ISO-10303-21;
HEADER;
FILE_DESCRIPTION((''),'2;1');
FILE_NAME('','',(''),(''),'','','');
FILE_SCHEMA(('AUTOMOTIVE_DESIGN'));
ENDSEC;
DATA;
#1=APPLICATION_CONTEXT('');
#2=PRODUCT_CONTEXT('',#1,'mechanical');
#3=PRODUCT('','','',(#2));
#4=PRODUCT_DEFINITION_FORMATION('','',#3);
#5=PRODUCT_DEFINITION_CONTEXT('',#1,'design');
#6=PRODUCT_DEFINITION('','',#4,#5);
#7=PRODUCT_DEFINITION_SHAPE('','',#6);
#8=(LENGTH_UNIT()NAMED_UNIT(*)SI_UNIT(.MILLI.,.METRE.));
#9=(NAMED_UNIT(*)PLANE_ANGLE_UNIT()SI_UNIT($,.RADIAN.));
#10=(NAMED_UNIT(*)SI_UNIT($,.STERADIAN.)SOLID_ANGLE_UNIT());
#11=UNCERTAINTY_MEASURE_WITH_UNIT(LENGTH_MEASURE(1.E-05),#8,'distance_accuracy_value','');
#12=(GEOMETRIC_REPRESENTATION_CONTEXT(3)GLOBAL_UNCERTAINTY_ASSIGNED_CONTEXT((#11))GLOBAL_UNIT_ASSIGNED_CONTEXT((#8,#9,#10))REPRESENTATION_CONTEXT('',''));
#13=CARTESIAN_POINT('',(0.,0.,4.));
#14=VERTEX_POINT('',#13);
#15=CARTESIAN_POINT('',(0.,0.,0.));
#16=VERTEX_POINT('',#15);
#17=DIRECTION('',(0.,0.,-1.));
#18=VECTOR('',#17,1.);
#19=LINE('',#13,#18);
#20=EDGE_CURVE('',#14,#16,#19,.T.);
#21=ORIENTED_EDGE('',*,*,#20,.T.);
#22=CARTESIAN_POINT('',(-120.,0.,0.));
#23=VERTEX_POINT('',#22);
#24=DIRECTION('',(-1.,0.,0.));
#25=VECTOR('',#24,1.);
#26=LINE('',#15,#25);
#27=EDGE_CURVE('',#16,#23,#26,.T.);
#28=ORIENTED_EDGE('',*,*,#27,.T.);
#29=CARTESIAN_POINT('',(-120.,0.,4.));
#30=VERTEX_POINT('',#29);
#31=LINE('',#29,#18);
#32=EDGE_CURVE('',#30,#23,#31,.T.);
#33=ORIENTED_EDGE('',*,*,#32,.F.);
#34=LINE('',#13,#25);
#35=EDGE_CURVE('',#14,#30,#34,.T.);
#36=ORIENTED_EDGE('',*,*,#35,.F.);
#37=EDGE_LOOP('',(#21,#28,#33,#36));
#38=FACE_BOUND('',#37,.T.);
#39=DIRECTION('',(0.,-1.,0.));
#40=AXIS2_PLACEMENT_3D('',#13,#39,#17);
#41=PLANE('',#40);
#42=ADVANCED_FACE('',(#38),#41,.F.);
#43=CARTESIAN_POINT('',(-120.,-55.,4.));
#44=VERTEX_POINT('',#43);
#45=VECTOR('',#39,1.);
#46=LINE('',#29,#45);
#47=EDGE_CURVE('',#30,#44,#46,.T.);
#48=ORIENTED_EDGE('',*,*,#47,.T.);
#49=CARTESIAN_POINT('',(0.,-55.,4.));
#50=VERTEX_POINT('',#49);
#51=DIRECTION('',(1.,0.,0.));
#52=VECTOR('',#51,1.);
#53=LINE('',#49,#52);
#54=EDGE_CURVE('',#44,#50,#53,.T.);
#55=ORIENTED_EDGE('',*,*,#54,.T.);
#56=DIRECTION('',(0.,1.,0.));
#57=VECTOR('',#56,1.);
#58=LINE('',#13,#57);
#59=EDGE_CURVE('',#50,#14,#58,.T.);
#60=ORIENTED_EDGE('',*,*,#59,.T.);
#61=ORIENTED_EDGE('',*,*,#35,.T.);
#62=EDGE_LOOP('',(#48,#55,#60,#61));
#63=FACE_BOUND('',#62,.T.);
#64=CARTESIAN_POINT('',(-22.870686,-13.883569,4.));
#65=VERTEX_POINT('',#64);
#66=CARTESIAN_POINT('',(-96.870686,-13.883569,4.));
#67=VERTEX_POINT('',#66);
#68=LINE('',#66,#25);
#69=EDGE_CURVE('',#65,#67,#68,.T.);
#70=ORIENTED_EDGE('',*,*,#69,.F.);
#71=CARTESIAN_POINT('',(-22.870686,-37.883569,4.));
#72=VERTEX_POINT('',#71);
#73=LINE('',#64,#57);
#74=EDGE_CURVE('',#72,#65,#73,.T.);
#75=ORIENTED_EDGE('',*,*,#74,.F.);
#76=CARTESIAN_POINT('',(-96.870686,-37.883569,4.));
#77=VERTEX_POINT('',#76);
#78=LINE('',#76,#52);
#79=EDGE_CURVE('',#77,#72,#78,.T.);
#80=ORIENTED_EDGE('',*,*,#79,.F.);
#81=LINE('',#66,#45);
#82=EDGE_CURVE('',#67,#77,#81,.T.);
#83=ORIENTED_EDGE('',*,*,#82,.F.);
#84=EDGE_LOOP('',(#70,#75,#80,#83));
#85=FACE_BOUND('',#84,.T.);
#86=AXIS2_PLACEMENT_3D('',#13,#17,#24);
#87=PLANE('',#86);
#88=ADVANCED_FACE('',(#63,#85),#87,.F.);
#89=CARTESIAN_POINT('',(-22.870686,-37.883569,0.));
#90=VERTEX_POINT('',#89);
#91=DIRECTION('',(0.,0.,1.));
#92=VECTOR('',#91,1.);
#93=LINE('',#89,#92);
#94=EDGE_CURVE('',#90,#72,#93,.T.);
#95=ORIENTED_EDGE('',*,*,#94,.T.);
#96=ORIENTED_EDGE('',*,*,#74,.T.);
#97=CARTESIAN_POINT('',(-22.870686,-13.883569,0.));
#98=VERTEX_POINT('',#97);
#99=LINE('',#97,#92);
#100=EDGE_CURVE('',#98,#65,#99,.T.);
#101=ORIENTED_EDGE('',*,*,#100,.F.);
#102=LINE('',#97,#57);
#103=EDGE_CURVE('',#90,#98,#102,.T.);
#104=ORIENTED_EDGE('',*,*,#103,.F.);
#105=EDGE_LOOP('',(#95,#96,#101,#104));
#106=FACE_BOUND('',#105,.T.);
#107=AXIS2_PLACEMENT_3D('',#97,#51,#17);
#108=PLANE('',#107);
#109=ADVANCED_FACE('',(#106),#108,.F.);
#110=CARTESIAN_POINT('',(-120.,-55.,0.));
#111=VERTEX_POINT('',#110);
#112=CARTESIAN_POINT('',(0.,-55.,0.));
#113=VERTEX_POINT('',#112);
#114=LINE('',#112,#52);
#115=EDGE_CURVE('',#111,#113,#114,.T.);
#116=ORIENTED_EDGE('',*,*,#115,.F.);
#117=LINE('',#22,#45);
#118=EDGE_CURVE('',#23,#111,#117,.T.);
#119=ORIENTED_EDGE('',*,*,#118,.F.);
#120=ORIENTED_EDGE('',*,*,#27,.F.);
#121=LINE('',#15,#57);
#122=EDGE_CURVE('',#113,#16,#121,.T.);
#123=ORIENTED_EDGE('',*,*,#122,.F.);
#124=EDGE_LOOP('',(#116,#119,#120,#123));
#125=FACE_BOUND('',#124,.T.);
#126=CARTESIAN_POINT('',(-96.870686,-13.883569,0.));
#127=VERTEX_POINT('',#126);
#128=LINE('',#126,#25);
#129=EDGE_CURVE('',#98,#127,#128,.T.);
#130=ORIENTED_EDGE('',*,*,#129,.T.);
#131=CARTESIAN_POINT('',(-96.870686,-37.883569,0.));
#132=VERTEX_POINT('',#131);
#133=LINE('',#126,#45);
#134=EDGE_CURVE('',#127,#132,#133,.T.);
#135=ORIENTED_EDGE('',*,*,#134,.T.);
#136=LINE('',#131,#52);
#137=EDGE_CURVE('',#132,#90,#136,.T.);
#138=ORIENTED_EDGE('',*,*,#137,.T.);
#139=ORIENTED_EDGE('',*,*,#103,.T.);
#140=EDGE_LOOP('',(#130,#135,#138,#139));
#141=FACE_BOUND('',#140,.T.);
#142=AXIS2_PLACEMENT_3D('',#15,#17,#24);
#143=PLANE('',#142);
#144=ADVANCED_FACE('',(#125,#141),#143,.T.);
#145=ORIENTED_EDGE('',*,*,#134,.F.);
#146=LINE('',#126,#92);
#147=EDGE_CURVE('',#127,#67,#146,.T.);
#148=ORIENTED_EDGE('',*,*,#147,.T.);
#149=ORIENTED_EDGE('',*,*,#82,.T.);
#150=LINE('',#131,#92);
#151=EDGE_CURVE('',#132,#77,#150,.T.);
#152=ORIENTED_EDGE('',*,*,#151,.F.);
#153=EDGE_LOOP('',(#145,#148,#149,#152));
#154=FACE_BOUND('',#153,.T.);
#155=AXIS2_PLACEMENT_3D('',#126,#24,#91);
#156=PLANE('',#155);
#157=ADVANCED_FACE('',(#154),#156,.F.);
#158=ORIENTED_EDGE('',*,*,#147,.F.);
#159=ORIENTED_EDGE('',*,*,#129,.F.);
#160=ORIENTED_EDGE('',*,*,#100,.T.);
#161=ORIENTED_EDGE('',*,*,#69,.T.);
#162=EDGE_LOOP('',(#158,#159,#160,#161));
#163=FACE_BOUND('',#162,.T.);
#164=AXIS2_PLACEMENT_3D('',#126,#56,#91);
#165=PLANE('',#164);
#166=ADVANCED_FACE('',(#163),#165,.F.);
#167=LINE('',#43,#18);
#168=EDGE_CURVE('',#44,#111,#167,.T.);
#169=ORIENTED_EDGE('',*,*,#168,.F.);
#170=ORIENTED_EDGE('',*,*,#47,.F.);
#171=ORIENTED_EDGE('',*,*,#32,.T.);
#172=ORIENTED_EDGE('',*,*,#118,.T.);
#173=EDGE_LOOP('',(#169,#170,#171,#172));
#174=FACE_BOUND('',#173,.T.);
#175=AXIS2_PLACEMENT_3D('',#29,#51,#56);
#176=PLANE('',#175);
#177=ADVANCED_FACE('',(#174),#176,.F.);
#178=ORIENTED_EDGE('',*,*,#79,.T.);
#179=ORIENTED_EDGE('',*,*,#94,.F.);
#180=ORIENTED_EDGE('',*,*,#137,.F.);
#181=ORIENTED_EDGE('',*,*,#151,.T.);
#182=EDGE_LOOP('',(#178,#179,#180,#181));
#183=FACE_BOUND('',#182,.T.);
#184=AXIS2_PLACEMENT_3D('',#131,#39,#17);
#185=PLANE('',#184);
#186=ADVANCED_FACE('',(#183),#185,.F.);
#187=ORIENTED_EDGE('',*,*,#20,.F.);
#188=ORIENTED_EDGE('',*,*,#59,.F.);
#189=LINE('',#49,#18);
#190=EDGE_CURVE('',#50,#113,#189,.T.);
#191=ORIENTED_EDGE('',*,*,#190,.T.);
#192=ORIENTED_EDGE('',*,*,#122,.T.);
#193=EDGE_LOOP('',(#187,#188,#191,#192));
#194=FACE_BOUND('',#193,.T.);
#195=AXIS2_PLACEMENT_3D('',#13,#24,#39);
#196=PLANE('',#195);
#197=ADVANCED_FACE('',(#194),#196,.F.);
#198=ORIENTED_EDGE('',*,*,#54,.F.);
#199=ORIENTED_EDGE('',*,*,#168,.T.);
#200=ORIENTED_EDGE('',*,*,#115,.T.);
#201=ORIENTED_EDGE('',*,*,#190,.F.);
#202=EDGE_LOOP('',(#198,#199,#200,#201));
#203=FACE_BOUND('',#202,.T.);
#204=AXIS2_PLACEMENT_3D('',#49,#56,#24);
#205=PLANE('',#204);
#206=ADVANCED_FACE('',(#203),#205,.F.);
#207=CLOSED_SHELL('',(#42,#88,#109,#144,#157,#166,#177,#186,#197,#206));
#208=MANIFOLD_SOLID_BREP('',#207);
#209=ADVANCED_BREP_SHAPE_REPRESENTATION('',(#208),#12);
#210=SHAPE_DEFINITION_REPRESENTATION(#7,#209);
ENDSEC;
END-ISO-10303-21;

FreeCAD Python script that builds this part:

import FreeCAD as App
import Part
import Sketcher


def add_polygon(sketch, points):
    """Adds a closed chain of lines whose ends are joined by coincident constraints."""
    first, n = sketch.GeometryCount, len(points)
    for a, b in zip(points, points[1:] + points[:1]):
        sketch.addGeometry(Part.LineSegment(App.Vector(*a, 0), App.Vector(*b, 0)), False)
    for i in range(n):
        sketch.addConstraint(Sketcher.Constraint("Coincident", first + i, 2, first + (i + 1) % n, 1))

doc = App.newDocument("Part")
body = doc.addObject("PartDesign::Body", "Body")

# Sketch on XY plane
sketch1 = body.newObject("Sketcher::SketchObject", "Sketch")
sketch1.AttachmentSupport = (doc.getObject("XY_Plane"), [""])
sketch1.MapMode = "FlatFace"
add_polygon(sketch1, [(-120, 0), (-120, -55), (0, -55), (0, 0)])  # lines 0-3
sketch1.addConstraint([
    Sketcher.Constraint("Vertical", 0),
    Sketcher.Constraint("Horizontal", 1),
    Sketcher.Constraint("Vertical", 2),
    Sketcher.Constraint("Horizontal", 3),
    Sketcher.Constraint("Coincident", 2, 2, -1, 1),
    Sketcher.Constraint("DistanceX", 1, 1, 1, 2, 120.0),
    Sketcher.Constraint("DistanceY", 0, 2, 0, 1, 55.0),
])
pad1 = body.newObject("PartDesign::Pad", "Pad")
pad1.Profile = sketch1
pad1.Length = 4

# Sketch on XY plane
sketch2 = body.newObject("Sketcher::SketchObject", "Sketch001")
sketch2.AttachmentSupport = (doc.getObject("XY_Plane"), [""])
sketch2.MapMode = "FlatFace"
sketch2.AttachmentOffset = App.Placement(App.Vector(0, 0, 4), App.Rotation())
add_polygon(sketch2, [(-96.870686, -13.883569), (-96.870686, -37.883569), (-22.870686, -37.883569), (-22.870686, -13.883569)])  # lines 0-3
sketch2.addConstraint([
    Sketcher.Constraint("Vertical", 0),
    Sketcher.Constraint("Horizontal", 1),
    Sketcher.Constraint("Vertical", 2),
    Sketcher.Constraint("Horizontal", 3),
    Sketcher.Constraint("DistanceX", 1, 1, 1, 2, 74.0),
    Sketcher.Constraint("DistanceY", 0, 2, 0, 1, 24.0),
    Sketcher.Constraint("DistanceY", 0, 2, -1, 1, 37.883569),
    Sketcher.Constraint("DistanceX", 0, 2, -1, 1, 96.870686),
])
pocket1 = body.newObject("PartDesign::Pocket", "Pocket")
pocket1.Profile = sketch2
pocket1.Length = 4

doc.recompute()
